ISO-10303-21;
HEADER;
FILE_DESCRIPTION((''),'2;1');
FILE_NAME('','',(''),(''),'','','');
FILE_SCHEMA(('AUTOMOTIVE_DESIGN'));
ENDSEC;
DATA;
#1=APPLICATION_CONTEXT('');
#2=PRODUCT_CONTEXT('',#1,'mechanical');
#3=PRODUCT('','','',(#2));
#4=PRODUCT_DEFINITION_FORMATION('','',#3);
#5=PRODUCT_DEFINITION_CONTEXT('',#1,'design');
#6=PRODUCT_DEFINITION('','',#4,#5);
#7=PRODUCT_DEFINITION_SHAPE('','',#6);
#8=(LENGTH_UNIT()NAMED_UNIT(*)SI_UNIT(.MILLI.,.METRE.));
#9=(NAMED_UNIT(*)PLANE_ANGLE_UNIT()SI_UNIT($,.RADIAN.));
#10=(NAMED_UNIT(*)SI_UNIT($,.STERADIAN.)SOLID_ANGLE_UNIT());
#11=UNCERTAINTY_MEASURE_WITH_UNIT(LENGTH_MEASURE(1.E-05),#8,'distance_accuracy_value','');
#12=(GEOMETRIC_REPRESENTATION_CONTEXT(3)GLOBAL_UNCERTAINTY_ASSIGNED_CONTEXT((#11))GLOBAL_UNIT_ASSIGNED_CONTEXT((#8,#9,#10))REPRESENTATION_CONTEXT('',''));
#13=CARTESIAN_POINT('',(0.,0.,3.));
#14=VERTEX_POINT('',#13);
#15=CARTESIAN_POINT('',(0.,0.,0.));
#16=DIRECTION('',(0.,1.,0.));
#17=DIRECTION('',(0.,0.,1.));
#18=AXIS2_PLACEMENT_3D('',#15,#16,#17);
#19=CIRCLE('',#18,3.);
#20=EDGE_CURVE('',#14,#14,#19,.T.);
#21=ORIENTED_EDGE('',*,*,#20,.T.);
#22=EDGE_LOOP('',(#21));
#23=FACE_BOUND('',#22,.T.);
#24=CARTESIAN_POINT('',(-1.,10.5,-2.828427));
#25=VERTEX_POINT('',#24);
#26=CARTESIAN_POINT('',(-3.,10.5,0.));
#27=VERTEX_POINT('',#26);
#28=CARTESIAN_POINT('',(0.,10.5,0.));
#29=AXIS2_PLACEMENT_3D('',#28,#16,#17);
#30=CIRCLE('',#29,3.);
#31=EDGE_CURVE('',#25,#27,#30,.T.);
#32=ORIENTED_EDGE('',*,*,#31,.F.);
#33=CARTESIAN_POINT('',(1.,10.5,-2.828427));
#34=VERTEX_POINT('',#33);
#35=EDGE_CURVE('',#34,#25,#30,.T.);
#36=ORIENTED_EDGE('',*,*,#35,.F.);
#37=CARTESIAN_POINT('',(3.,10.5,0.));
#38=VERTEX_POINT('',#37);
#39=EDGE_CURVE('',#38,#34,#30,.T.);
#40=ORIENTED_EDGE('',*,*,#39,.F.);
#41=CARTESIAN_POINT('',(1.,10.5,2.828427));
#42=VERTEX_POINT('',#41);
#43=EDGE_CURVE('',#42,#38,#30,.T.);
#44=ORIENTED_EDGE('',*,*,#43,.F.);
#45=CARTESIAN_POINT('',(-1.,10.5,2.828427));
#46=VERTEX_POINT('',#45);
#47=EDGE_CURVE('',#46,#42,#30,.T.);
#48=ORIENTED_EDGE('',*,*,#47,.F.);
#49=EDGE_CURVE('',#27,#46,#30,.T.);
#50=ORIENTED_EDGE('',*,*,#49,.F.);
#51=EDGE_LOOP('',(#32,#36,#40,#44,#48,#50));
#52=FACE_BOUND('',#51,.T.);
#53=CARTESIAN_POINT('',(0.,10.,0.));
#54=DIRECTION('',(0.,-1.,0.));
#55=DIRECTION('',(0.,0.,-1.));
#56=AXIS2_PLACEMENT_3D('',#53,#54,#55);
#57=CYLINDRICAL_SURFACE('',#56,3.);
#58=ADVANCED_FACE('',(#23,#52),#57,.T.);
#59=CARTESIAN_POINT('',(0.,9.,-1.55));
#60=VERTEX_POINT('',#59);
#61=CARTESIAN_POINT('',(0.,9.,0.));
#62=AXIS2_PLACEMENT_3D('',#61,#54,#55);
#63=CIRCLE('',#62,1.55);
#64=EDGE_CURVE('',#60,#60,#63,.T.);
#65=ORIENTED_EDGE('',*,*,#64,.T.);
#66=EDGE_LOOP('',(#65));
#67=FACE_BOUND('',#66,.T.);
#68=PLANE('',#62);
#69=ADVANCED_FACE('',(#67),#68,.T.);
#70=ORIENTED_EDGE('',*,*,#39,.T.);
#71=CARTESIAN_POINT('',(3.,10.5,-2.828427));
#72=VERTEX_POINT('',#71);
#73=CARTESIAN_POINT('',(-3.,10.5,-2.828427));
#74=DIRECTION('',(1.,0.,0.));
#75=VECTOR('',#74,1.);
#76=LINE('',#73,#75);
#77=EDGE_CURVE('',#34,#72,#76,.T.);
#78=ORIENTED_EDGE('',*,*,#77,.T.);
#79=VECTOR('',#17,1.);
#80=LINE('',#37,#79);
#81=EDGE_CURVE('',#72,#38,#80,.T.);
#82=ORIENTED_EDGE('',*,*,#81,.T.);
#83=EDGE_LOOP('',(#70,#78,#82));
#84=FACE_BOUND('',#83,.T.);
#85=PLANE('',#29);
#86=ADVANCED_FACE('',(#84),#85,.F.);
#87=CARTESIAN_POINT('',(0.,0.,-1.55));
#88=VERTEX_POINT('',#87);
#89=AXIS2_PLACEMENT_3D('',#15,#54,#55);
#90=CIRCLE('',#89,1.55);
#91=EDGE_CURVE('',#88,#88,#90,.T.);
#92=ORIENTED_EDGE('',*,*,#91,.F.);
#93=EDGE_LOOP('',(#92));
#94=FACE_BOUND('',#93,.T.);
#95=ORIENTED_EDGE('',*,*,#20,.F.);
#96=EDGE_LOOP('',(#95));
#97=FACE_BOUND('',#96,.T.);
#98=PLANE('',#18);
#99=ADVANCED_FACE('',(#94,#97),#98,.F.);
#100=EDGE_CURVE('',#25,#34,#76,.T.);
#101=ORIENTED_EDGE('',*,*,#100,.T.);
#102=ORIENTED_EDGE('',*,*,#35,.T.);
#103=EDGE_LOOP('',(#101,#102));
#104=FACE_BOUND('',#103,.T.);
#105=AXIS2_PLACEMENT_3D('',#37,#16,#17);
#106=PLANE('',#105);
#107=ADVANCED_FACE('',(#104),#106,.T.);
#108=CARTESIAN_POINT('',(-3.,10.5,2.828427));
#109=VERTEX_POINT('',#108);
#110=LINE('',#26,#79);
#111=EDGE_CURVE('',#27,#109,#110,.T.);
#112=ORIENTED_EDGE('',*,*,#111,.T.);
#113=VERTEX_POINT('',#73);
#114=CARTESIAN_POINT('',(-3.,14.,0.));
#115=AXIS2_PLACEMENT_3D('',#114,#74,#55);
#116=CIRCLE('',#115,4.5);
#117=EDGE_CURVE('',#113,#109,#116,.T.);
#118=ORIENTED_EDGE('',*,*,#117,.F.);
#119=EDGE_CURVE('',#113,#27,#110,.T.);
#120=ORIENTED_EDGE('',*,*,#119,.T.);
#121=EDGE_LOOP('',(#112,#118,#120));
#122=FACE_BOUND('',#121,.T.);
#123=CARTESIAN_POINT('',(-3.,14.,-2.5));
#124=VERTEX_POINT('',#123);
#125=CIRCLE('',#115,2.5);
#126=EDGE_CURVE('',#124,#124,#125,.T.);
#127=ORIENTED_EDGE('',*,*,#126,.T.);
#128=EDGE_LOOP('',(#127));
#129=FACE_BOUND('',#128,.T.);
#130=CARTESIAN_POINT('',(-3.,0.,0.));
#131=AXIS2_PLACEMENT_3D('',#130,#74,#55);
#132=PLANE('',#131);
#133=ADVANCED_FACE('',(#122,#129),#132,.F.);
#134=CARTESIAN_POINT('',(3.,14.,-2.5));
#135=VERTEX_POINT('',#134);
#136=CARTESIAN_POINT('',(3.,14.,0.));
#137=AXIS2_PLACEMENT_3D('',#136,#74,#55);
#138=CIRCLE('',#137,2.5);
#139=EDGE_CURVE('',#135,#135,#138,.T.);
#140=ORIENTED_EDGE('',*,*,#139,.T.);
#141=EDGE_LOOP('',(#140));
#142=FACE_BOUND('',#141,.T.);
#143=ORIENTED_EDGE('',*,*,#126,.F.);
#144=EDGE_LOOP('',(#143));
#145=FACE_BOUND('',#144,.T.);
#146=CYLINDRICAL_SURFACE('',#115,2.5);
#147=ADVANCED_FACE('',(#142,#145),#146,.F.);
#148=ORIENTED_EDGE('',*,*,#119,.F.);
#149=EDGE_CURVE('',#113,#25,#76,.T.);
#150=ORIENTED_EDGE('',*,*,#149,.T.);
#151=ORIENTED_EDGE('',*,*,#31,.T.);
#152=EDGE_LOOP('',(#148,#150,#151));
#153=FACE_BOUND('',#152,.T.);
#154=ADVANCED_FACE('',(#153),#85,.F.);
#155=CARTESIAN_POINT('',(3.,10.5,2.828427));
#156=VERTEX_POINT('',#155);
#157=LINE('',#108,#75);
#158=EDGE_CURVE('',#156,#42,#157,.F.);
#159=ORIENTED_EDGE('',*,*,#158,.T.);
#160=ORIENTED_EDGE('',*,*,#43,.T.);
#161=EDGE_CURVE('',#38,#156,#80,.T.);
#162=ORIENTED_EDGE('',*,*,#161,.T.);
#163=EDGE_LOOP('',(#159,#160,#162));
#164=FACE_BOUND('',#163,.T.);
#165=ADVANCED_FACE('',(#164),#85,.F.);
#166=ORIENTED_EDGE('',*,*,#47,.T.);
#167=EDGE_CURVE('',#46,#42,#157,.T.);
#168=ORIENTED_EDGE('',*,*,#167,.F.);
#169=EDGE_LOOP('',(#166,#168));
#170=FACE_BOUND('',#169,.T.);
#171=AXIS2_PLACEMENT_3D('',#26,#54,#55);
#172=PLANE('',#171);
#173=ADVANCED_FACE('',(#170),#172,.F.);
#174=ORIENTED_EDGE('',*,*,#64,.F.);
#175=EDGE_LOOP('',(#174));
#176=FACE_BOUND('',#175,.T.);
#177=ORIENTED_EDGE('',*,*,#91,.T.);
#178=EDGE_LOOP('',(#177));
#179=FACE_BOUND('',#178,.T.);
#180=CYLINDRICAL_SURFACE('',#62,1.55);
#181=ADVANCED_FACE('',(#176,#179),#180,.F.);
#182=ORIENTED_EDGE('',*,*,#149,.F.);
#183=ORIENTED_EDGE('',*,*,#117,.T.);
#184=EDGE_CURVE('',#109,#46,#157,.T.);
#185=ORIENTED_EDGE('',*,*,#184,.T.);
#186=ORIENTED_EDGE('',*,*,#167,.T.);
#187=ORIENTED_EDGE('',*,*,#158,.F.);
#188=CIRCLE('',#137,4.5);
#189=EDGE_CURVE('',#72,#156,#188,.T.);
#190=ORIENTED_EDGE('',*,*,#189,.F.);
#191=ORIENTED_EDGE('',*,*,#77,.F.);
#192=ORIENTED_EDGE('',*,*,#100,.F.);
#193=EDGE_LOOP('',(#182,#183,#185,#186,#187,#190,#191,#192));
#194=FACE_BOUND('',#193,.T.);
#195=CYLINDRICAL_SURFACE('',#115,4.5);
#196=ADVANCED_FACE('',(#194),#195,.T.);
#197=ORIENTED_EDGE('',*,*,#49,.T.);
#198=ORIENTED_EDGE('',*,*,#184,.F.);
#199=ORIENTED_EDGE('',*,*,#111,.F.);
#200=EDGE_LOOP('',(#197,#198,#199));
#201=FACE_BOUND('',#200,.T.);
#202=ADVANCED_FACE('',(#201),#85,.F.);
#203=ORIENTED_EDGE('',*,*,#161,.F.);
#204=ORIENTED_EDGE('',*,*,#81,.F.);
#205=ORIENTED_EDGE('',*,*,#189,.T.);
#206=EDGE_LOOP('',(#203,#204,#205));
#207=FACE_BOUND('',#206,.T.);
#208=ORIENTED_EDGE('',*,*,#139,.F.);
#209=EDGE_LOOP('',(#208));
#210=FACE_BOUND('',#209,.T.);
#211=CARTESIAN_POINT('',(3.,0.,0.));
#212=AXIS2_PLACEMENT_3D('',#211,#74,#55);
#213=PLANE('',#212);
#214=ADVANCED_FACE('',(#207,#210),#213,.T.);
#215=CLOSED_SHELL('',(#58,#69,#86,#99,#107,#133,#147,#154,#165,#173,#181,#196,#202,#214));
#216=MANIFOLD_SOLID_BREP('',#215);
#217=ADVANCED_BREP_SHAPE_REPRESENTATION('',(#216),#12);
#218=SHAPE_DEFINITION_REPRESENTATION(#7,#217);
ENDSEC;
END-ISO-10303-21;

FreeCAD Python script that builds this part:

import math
import FreeCAD as App
import Part
import Sketcher

V = App.Vector


def add_polygon(sketch, points):
    """Adds a closed chain of lines whose ends are joined by coincident constraints."""
    first, n = sketch.GeometryCount, len(points)
    for a, b in zip(points, points[1:] + points[:1]):
        sketch.addGeometry(Part.LineSegment(App.Vector(*a, 0), App.Vector(*b, 0)), False)
    for i in range(n):
        sketch.addConstraint(Sketcher.Constraint("Coincident", first + i, 2, first + (i + 1) % n, 1))

doc = App.newDocument("Part")
body = doc.addObject("PartDesign::Body", "Body")

# Sketch on XZ plane
sketch1 = body.newObject("Sketcher::SketchObject", "Sketch")
sketch1.AttachmentSupport = (doc.getObject("XZ_Plane"), [""])
sketch1.MapMode = "FlatFace"
sketch1.addGeometry(Part.Circle(V(0, 0, 0), V(0, 0, 1), 3), False)
sketch1.addConstraint([
    Sketcher.Constraint("Coincident", 0, 3, -1, 1),
    Sketcher.Constraint("Diameter", 0, 6.0),
])
pad1 = body.newObject("PartDesign::Pad", "Pad")
pad1.Profile = sketch1
pad1.Length = 10
pad1.Reversed = True

# Sketch on XZ plane
sketch2 = body.newObject("Sketcher::SketchObject", "Sketch001")
sketch2.AttachmentSupport = (doc.getObject("XZ_Plane"), [""])
sketch2.MapMode = "FlatFace"
sketch2.addGeometry(Part.Circle(V(0, 0, 0), V(0, 0, 1), 1.55), False)
sketch2.addConstraint([
    Sketcher.Constraint("Coincident", 0, 3, -1, 1),
    Sketcher.Constraint("Diameter", 0, 3.1),
])
pocket1 = body.newObject("PartDesign::Pocket", "Pocket")
pocket1.Profile = sketch2
pocket1.Length = 9

# Sketch on YZ plane
sketch3 = body.newObject("Sketcher::SketchObject", "Sketch002")
sketch3.AttachmentSupport = (doc.getObject("YZ_Plane"), [""])
sketch3.MapMode = "FlatFace"
sketch3.addGeometry([
    Part.LineSegment(V(10.5, 3, 0), V(10, 3, 0)),  # 0
    Part.LineSegment(V(10, 3, 0), V(10, -3, 0)),  # 1
    Part.LineSegment(V(10, -3, 0), V(10.5, -3, 0)),  # 2
    Part.LineSegment(V(10.5, -3, 0), V(10.5, -2.828427, 0)),  # 3
    Part.ArcOfCircle(Part.Circle(V(14, 0, 0), V(0, 0, 1), 4.5), math.radians(-141.057559), math.radians(141.057559)),  # 4
    Part.LineSegment(V(10.5, 2.828427, 0), V(10.5, 3, 0)),  # 5
], False)
sketch3.addConstraint([
    Sketcher.Constraint("Coincident", 0, 2, 1, 1),
    Sketcher.Constraint("Coincident", 1, 2, 2, 1),
    Sketcher.Constraint("Coincident", 2, 2, 3, 1),
    Sketcher.Constraint("Coincident", 3, 2, 4, 1),
    Sketcher.Constraint("Coincident", 4, 2, 5, 1),
    Sketcher.Constraint("Coincident", 5, 2, 0, 1),
    Sketcher.Constraint("Horizontal", 0),
    Sketcher.Constraint("Vertical", 1),
    Sketcher.Constraint("Horizontal", 2),
    Sketcher.Constraint("Vertical", 3),
    Sketcher.Constraint("Vertical", 5),
    Sketcher.Constraint("Symmetric", 3, 2, 4, 2, -1),
    Sketcher.Constraint("Equal", 3, 5),
    Sketcher.Constraint("Radius", 4, 4.5),
    Sketcher.Constraint("DistanceY", 1, 2, 1, 1, 6.0),
    Sketcher.Constraint("DistanceX", 0, 2, 0, 1, 0.5),
    Sketcher.Constraint("DistanceX", -1, 1, 4, 3, 14.0),
    Sketcher.Constraint("DistanceX", -1, 1, 0, 2, 10.0),
])
pad2 = body.newObject("PartDesign::Pad", "Pad001")
pad2.Profile = sketch3
pad2.Type = "TwoLengths"
pad2.Length = 3
pad2.Length2 = 3

# Sketch on YZ plane
sketch4 = body.newObject("Sketcher::SketchObject", "Sketch003")
sketch4.AttachmentSupport = (doc.getObject("YZ_Plane"), [""])
sketch4.MapMode = "FlatFace"
sketch4.AttachmentOffset = App.Placement(V(0, 0, 3), App.Rotation())
sketch4.addGeometry(Part.Circle(V(14, 0, 0), V(0, 0, 1), 2.5), False)
sketch4.addConstraint([
    Sketcher.Constraint("PointOnObject", 0, 3, -1),
    Sketcher.Constraint("Diameter", 0, 5.0),
    Sketcher.Constraint("DistanceX", -1, 1, 0, 3, 14.0),
])
pocket2 = body.newObject("PartDesign::Pocket", "Pocket001")
pocket2.Profile = sketch4
pocket2.Type = "ThroughAll"

# Sketch on XZ plane
sketch5 = body.newObject("Sketcher::SketchObject", "Sketch004")
sketch5.AttachmentSupport = (doc.getObject("XZ_Plane"), [""])
sketch5.MapMode = "FlatFace"
add_polygon(sketch5, [(-6.143, -7.643), (-6.143, 7.643), (6.143, 7.643), (6.143, -7.643)])  # lines 0-3
sketch5.addGeometry(Part.Circle(V(0, 0, 0), V(0, 0, 1), 3), False)  # 4
sketch5.addConstraint([
    Sketcher.Constraint("Vertical", 0),
    Sketcher.Constraint("Horizontal", 1),
    Sketcher.Constraint("Vertical", 2),
    Sketcher.Constraint("Horizontal", 3),
    Sketcher.Constraint("Coincident", 4, 3, -1, 1),
    Sketcher.Constraint("Symmetric", 0, 2, 2, 2, -1, 1),
    Sketcher.Constraint("Diameter", 4, 6.0),
    Sketcher.Constraint("DistanceX", 1, 1, 1, 2, 12.286),
    Sketcher.Constraint("DistanceY", 0, 1, 0, 2, 15.286),
])
pocket3 = body.newObject("PartDesign::Pocket", "Pocket002")
pocket3.Profile = sketch5
pocket3.Length = 10.5

doc.recompute()
